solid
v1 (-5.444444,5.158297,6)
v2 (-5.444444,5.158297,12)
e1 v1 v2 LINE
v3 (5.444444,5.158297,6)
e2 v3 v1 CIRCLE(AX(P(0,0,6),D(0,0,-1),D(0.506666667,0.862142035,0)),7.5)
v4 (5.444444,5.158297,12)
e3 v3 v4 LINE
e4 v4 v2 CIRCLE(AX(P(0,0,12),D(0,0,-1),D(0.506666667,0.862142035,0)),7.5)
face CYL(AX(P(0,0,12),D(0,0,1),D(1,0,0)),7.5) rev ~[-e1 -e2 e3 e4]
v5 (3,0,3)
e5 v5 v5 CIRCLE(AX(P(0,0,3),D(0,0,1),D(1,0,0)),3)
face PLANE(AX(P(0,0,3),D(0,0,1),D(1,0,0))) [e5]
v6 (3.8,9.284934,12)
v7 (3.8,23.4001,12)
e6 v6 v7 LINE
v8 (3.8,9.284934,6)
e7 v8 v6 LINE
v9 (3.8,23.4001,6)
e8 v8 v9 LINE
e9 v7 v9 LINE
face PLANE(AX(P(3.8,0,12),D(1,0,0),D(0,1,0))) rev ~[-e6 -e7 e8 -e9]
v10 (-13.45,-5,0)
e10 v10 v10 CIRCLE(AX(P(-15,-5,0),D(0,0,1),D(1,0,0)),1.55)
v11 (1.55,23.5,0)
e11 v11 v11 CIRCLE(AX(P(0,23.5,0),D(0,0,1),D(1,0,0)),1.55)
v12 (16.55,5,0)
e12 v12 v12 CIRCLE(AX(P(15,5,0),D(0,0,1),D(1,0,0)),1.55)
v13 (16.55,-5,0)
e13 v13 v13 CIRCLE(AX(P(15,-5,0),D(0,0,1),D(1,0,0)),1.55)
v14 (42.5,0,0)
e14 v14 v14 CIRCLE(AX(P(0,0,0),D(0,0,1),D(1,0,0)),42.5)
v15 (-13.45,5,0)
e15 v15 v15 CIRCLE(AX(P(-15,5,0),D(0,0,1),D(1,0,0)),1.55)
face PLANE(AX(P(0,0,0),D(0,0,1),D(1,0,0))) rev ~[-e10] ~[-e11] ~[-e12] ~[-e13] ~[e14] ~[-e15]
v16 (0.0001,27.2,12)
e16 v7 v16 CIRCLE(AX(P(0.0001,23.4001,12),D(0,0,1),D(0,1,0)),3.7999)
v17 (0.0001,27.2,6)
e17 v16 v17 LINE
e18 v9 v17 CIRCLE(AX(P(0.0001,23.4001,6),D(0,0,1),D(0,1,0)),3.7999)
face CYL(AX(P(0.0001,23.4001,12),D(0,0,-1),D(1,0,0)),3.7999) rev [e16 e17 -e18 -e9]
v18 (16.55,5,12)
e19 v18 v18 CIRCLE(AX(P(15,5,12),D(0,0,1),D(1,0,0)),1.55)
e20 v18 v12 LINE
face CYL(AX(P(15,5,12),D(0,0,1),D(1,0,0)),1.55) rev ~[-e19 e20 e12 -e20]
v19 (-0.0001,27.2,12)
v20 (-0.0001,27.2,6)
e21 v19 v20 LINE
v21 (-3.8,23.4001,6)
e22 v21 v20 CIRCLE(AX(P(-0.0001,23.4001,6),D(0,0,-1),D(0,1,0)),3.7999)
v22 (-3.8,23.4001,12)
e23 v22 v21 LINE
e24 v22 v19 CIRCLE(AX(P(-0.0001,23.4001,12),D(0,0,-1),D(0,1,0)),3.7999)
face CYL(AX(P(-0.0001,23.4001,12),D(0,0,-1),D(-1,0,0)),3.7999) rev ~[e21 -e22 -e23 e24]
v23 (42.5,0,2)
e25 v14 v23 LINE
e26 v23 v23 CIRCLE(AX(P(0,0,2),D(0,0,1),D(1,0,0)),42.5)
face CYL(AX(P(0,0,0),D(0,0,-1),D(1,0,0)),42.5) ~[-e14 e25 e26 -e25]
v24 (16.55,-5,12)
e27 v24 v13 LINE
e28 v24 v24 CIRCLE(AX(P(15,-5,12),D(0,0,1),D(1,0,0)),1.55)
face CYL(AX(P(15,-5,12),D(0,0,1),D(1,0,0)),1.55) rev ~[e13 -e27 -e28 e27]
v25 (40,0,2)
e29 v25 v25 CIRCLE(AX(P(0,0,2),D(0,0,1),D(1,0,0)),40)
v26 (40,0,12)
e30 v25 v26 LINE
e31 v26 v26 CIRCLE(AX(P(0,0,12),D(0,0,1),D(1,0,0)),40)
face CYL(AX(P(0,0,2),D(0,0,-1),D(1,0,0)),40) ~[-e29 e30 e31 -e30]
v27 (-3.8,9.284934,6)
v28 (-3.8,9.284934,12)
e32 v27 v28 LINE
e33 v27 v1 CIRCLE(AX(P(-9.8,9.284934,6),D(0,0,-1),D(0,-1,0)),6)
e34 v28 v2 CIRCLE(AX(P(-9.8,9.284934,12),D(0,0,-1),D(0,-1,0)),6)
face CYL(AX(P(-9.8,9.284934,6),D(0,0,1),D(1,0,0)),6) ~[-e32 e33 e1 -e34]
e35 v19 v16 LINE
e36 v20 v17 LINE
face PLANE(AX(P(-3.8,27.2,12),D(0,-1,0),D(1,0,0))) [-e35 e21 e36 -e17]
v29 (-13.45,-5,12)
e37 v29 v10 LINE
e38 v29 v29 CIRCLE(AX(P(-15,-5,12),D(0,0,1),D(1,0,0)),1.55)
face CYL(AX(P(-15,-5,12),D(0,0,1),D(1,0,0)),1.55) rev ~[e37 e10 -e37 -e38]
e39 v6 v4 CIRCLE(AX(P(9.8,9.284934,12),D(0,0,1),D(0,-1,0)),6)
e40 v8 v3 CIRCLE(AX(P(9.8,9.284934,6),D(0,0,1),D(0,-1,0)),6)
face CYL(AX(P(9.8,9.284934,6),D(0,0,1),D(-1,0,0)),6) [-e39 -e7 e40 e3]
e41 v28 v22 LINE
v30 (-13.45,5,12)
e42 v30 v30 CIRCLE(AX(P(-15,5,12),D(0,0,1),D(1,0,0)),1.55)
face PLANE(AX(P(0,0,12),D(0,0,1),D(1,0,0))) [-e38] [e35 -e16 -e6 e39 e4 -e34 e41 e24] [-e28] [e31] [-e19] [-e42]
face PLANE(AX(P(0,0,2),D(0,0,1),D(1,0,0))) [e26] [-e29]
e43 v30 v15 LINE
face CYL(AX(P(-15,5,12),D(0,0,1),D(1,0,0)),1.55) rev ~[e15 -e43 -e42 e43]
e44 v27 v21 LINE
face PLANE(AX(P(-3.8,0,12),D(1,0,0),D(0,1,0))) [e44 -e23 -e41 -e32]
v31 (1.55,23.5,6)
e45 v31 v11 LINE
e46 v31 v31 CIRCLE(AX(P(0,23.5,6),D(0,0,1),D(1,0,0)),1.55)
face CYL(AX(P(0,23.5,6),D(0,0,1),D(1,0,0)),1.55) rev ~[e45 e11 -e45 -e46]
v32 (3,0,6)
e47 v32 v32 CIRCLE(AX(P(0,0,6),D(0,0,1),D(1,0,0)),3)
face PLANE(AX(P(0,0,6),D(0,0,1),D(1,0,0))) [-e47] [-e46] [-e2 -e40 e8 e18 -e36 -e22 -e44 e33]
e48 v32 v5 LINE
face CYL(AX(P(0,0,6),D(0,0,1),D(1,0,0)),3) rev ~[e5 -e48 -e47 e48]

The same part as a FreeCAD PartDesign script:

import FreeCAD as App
import Part
import Sketcher
Q = App.Units.Quantity


def edges_at(feature, points):
    """Names of the edges that pass closest to the given points."""
    edges = feature.Shape.Edges
    near = lambda p: min(range(len(edges)), key=lambda i: edges[i].distToShape(Part.Vertex(*p))[0])
    return sorted({f"Edge{near(p) + 1}" for p in points})

doc = App.newDocument("Part")
body = doc.addObject("PartDesign::Body", "Body")

sketch1 = doc.addObject("Sketcher::SketchObject", "Sketch")
body.addObject(sketch1)
sketch1.AttachmentSupport = (doc.XY_Plane, [""])
sketch1.MapMode = "FlatFace"
sketch1.addGeometry(Part.Circle(App.Vector(0, 0, 0), App.Vector(0, 0, 1), 42), False)
sketch1.addConstraint([
    Sketcher.Constraint("Coincident", 0, 3, -1, 1),
    Sketcher.Constraint("Diameter", 0, Q("85 mm")),
])
pad1 = doc.addObject("PartDesign::Pad", "Pad")
body.addObject(pad1)
pad1.Profile = sketch1
pad1.Length = 2

sketch2 = doc.addObject("Sketcher::SketchObject", "Sketch001")
body.addObject(sketch2)
sketch2.AttachmentSupport = (doc.XY_Plane, [""])
sketch2.MapMode = "FlatFace"
sketch2.AttachmentOffset = App.Placement(App.Vector(0, 0, 2), App.Rotation())
sketch2.addGeometry(Part.Circle(App.Vector(0, 0, 0), App.Vector(0, 0, 1), 40), False)
sketch2.addConstraint([
    Sketcher.Constraint("Coincident", 0, 3, -1, 1),
    Sketcher.Constraint("Diameter", 0, Q("80 mm")),
])
pad2 = doc.addObject("PartDesign::Pad", "Pad001")
body.addObject(pad2)
pad2.Profile = sketch2
pad2.Length = 10

sketch3 = doc.addObject("Sketcher::SketchObject", "Sketch002")
body.addObject(sketch3)
sketch3.AttachmentSupport = (doc.XY_Plane, [""])
sketch3.MapMode = "FlatFace"
sketch3.AttachmentOffset = App.Placement(App.Vector(0, 0, 12), App.Rotation())
sketch3.addGeometry(Part.Circle(App.Vector(0, 0, 0), App.Vector(0, 0, 1), 8), False)
sketch3.addConstraint([
    Sketcher.Constraint("Coincident", 0, 3, -1, 1),
    Sketcher.Constraint("Diameter", 0, Q("15 mm")),
])
pocket1 = doc.addObject("PartDesign::Pocket", "Pocket")
body.addObject(pocket1)
pocket1.Profile = sketch3
pocket1.Length = 6

sketch4 = doc.addObject("Sketcher::SketchObject", "Sketch003")
body.addObject(sketch4)
sketch4.AttachmentSupport = (doc.XY_Plane, [""])
sketch4.MapMode = "FlatFace"
sketch4.AttachmentOffset = App.Placement(App.Vector(0, 0, 12), App.Rotation())
sketch4.addGeometry([
    Part.LineSegment(App.Vector(-4, 27, 0), App.Vector(-4, 0, 0)),
    Part.LineSegment(App.Vector(-4, 0, 0), App.Vector(4, 0, 0)),
    Part.LineSegment(App.Vector(4, 0, 0), App.Vector(4, 27, 0)),
    Part.LineSegment(App.Vector(4, 27, 0), App.Vector(-4, 27, 0)),
], False)
sketch4.addConstraint([
    Sketcher.Constraint("Coincident", 0, 2, 1, 1),
    Sketcher.Constraint("Coincident", 1, 2, 2, 1),
    Sketcher.Constraint("Coincident", 2, 2, 3, 1),
    Sketcher.Constraint("Coincident", 3, 2, 0, 1),
    Sketcher.Constraint("Vertical", 0),
    Sketcher.Constraint("Horizontal", 1),
    Sketcher.Constraint("Vertical", 2),
    Sketcher.Constraint("Horizontal", 3),
    Sketcher.Constraint("Symmetric", 0, 2, 1, 2, -1, 1),
    Sketcher.Constraint("DistanceX", 1, 1, 1, 2, Q("7.6 mm")),
    Sketcher.Constraint("DistanceY", 0, 2, 0, 1, Q("27.2 mm")),
])
pocket2 = doc.addObject("PartDesign::Pocket", "Pocket001")
body.addObject(pocket2)
pocket2.Profile = sketch4
pocket2.Length = 6
doc.recompute()

fillet = doc.addObject("PartDesign::Fillet", "Fillet")
body.addObject(fillet)
fillet.Base = (pocket2, edges_at(pocket2, [(-3.8, 6.466, 9), (3.8, 6.466, 9)]))
fillet.Radius = 6
doc.recompute()

fillet2 = doc.addObject("PartDesign::Fillet", "Fillet001")
body.addObject(fillet2)
fillet2.Base = (fillet, edges_at(fillet, [(3.8, 27.2, 9), (-3.8, 27.2, 9)]))
fillet2.Radius = 3.7999

sketch5 = doc.addObject("Sketcher::SketchObject", "Sketch004")
body.addObject(sketch5)
sketch5.AttachmentSupport = (doc.XY_Plane, [""])
sketch5.MapMode = "FlatFace"
sketch5.AttachmentOffset = App.Placement(App.Vector(0, 0, 6), App.Rotation())
sketch5.addGeometry(Part.Circle(App.Vector(0, 23.5, 0), App.Vector(0, 0, 1), 1.6), False)
sketch5.addConstraint([
    Sketcher.Constraint("PointOnObject", 0, 3, -2),
    Sketcher.Constraint("Diameter", 0, Q("3.1 mm")),
    Sketcher.Constraint("DistanceY", -1, 1, 0, 3, Q("23.5 mm")),
])
pocket3 = doc.addObject("PartDesign::Pocket", "Pocket002")
body.addObject(pocket3)
pocket3.Profile = sketch5
pocket3.Length = 6

sketch6 = doc.addObject("Sketcher::SketchObject", "Sketch005")
body.addObject(sketch6)
sketch6.AttachmentSupport = (doc.XY_Plane, [""])
sketch6.MapMode = "FlatFace"
sketch6.AttachmentOffset = App.Placement(App.Vector(0, 0, 6), App.Rotation())
sketch6.addGeometry(Part.Circle(App.Vector(0, 0, 0), App.Vector(0, 0, 1), 3), False)
sketch6.addConstraint([
    Sketcher.Constraint("Coincident", 0, 3, -1, 1),
    Sketcher.Constraint("Diameter", 0, Q("6 mm")),
])
pocket4 = doc.addObject("PartDesign::Pocket", "Pocket003")
body.addObject(pocket4)
pocket4.Profile = sketch6
pocket4.Length = 3

sketch7 = doc.addObject("Sketcher::SketchObject", "Sketch006")
body.addObject(sketch7)
sketch7.AttachmentSupport = (doc.XY_Plane, [""])
sketch7.MapMode = "FlatFace"
sketch7.AttachmentOffset = App.Placement(App.Vector(0, 0, 12), App.Rotation())
sketch7.addGeometry([
    Part.Circle(App.Vector(-15, 5, 0), App.Vector(0, 0, 1), 1.6),
    Part.Circle(App.Vector(15, 5, 0), App.Vector(0, 0, 1), 1.6),
    Part.Circle(App.Vector(15, -5, 0), App.Vector(0, 0, 1), 1.6),
    Part.Circle(App.Vector(-15, -5, 0), App.Vector(0, 0, 1), 1.6),
], False)
sketch7.addConstraint([
    Sketcher.Constraint("Equal", 0, 1),
    Sketcher.Constraint("Equal", 1, 2),
    Sketcher.Constraint("Equal", 2, 3),
    Sketcher.Constraint("Symmetric", 0, 3, 2, 3, -1, 1),
    Sketcher.Constraint("Symmetric", 1, 3, 3, 3, -1, 1),
    Sketcher.Constraint("Symmetric", 0, 3, 1, 3, -2),
    Sketcher.Constraint("Diameter", 0, Q("3.1 mm")),
    Sketcher.Constraint("DistanceX", 0, 3, -1, 1, Q("15 mm")),
    Sketcher.Constraint("DistanceY", -1, 1, 0, 3, Q("5 mm")),
])
pocket5 = doc.addObject("PartDesign::Pocket", "Pocket004")
body.addObject(pocket5)
pocket5.Profile = sketch7
pocket5.Length = 12

doc.recompute()
